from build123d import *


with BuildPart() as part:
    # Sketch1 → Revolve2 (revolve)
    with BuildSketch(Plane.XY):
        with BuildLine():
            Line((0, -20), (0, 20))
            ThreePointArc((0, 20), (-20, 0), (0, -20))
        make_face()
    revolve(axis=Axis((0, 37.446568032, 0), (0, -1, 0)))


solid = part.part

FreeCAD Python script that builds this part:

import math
import FreeCAD as App
import Part
import Sketcher

V = App.Vector
Q = App.Units.Quantity

doc = App.newDocument("Part")
body = doc.addObject("PartDesign::Body", "Body")

# Sketch on XY plane
sketch1 = body.newObject("Sketcher::SketchObject", "Sketch")
sketch1.AttachmentSupport = (doc.getObject("XY_Plane"), [""])
sketch1.MapMode = "FlatFace"
sketch1.addGeometry([
    Part.LineSegment(V(0, -20, 0), V(0, 20, 0)),
    Part.ArcOfCircle(Part.Circle(V(0, 0, 0), V(0, 0, 1), 20), math.radians(90), math.radians(270)),
], False)
sketch1.addConstraint([
    Sketcher.Constraint("Coincident", 0, 1, 1, 2),
    Sketcher.Constraint("Coincident", 1, 1, 0, 2),
    Sketcher.Constraint("Vertical", 0),
    Sketcher.Constraint("Coincident", 1, 3, -1, 1),
    Sketcher.Constraint("PointOnObject", 0, 1, -2),
    Sketcher.Constraint("Radius", 1, Q("20 mm")),
])
revolution = body.newObject("PartDesign::Revolution", "Revolution")
revolution.Profile = sketch1
revolution.ReferenceAxis = (sketch1, ["V_Axis"])
revolution.Angle = 360

doc.recompute()
